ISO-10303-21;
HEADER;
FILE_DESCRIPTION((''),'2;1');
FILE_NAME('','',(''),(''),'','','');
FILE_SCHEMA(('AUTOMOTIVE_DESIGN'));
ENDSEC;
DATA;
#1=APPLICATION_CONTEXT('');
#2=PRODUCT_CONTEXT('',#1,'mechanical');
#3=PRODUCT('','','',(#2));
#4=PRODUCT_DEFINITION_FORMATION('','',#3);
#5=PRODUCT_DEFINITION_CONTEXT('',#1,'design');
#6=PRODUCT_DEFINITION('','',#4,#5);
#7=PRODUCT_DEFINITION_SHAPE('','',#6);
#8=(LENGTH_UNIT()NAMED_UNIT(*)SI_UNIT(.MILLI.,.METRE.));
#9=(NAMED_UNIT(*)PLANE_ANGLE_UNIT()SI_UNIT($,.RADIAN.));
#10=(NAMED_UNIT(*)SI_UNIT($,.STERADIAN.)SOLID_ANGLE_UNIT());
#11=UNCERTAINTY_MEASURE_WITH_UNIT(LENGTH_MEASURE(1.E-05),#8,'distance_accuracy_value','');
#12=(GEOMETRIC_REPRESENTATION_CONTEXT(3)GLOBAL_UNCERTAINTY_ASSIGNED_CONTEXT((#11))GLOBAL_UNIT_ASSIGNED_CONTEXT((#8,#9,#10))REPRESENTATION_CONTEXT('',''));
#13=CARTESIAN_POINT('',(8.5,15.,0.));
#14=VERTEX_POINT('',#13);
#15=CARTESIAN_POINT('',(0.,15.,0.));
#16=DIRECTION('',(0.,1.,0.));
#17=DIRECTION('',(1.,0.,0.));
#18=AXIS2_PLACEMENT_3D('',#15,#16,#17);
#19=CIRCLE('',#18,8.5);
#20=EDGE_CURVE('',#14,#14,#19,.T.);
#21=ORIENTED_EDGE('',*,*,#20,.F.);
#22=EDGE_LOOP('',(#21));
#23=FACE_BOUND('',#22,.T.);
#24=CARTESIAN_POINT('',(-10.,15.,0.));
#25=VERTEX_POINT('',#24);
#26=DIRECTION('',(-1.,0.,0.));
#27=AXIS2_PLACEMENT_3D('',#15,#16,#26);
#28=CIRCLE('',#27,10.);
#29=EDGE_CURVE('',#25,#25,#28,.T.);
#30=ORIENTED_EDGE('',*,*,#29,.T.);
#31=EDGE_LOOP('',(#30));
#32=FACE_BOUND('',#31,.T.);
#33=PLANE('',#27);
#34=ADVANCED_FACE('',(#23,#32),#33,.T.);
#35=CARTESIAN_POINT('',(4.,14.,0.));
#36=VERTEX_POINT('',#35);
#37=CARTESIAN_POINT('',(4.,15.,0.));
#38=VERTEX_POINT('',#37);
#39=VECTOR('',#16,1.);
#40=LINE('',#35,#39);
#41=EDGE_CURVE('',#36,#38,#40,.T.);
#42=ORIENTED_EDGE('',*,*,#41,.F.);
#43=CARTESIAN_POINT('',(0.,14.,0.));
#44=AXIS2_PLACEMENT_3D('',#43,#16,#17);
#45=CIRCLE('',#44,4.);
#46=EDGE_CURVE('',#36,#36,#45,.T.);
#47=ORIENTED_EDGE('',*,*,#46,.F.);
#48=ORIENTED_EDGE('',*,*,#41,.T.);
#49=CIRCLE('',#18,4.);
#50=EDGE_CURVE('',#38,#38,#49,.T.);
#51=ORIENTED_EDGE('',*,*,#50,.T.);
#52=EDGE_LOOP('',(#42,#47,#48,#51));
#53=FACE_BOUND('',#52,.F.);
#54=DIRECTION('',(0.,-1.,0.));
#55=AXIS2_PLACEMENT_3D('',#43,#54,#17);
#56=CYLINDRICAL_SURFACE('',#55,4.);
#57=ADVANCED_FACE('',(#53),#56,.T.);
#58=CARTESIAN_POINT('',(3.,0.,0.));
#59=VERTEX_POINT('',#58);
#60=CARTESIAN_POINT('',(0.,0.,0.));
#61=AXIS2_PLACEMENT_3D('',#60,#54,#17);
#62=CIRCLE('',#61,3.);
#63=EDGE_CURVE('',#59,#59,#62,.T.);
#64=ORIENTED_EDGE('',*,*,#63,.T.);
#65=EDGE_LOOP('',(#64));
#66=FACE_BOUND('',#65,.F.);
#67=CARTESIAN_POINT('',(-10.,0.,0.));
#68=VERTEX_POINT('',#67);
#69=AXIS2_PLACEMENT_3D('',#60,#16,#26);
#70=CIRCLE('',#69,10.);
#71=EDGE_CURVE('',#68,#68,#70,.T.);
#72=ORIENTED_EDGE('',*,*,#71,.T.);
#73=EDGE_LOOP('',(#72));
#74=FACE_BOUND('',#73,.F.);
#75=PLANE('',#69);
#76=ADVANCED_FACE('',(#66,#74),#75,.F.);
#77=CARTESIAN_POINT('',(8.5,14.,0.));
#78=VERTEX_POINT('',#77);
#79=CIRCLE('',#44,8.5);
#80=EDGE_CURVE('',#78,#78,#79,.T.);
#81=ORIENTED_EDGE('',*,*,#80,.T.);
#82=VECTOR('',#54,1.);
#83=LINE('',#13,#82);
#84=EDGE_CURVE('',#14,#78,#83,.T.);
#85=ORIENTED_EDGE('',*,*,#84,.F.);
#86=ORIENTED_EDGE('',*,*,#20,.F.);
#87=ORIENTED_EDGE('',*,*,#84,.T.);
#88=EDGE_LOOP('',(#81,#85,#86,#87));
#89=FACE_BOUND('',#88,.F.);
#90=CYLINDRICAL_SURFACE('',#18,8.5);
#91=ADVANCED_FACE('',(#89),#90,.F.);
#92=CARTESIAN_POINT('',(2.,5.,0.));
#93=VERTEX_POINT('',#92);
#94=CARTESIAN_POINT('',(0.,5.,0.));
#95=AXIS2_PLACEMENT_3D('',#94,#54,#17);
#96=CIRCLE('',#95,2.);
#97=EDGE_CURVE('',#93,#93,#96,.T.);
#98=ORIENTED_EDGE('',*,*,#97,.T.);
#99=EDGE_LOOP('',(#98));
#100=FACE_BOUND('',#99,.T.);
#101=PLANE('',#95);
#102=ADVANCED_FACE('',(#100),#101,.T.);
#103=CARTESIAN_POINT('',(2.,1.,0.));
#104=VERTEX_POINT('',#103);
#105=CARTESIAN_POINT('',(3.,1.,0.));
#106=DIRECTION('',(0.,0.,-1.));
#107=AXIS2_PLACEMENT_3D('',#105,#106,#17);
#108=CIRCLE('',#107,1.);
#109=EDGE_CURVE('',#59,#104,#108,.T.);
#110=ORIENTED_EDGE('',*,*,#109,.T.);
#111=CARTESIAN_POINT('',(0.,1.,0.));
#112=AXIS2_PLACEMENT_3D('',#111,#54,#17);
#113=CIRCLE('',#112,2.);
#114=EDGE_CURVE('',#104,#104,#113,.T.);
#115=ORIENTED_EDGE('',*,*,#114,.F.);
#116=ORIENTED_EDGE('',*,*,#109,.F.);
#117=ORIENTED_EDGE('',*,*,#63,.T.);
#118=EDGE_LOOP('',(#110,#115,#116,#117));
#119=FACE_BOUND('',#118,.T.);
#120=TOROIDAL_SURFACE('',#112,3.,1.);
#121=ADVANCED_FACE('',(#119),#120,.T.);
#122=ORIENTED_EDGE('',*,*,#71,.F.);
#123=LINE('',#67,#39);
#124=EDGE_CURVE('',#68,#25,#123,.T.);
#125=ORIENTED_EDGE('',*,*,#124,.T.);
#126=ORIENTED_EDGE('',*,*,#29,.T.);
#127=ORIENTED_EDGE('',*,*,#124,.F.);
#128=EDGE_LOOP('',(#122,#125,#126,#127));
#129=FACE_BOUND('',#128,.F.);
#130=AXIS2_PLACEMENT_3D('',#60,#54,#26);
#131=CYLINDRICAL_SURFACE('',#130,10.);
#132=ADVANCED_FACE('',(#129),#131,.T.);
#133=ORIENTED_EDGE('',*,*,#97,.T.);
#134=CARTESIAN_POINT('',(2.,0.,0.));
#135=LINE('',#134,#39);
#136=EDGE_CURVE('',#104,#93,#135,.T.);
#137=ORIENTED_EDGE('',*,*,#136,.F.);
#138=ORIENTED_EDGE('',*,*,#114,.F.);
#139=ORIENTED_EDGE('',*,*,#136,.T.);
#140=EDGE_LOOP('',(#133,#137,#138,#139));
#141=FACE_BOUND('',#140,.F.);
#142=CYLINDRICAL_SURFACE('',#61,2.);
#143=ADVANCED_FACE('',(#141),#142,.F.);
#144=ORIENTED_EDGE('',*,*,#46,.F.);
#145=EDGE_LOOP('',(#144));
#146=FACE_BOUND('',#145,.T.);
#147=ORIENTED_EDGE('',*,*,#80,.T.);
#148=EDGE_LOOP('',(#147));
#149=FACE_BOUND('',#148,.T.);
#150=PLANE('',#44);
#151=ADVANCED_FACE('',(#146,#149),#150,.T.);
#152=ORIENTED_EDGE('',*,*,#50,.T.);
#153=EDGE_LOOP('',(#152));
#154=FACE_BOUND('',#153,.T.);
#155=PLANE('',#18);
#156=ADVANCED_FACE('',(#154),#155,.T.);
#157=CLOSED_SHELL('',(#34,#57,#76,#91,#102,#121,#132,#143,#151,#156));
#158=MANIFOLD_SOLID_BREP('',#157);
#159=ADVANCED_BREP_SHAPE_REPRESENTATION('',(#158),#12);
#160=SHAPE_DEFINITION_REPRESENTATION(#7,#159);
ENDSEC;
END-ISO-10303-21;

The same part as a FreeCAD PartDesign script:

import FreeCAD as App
import Part
import Sketcher
from FreeCAD import Vector
Q = App.Units.Quantity


def edges_at(feature, points):
    """Names of the edges that pass closest to the given points."""
    edges = feature.Shape.Edges
    near = lambda p: min(range(len(edges)), key=lambda i: edges[i].distToShape(Part.Vertex(*p))[0])
    return sorted({f"Edge{near(p) + 1}" for p in points})

doc = App.newDocument("Part")
body = doc.addObject("PartDesign::Body", "Body")

sketch1 = body.newObject("Sketcher::SketchObject", "Sketch")
sketch1.AttachmentSupport = (doc.getObject("XZ_Plane"), [""])
sketch1.MapMode = "FlatFace"
sketch1.addGeometry(Part.Circle(Vector(0, 0, 0), Vector(0, 0, 1), 10), False)
sketch1.addConstraint(Sketcher.Constraint("Coincident", 0, 3, -1, 1))
sketch1.addConstraint(Sketcher.Constraint("Diameter", 0, Q("20 mm")))
pad1 = body.newObject("PartDesign::Pad", "Pad")
pad1.Profile = sketch1
pad1.Length = 15
pad1.Reversed = True

sketch2 = body.newObject("Sketcher::SketchObject", "Sketch001")
sketch2.AttachmentSupport = (doc.getObject("XZ_Plane"), [""])
sketch2.MapMode = "FlatFace"
sketch2.AttachmentOffset = App.Placement(Vector(0, 0, -15), App.Rotation())
sketch2.addGeometry(Part.Circle(Vector(0, 0, 0), Vector(0, 0, 1), 8), False)
sketch2.addConstraint(Sketcher.Constraint("Coincident", 0, 3, -1, 1))
sketch2.addConstraint(Sketcher.Constraint("Diameter", 0, Q("17 mm")))
pocket1 = body.newObject("PartDesign::Pocket", "Pocket")
pocket1.Profile = sketch2
pocket1.Length = 1
pocket1.Reversed = True

sketch3 = body.newObject("Sketcher::SketchObject", "Sketch002")
sketch3.AttachmentSupport = (doc.getObject("XZ_Plane"), [""])
sketch3.MapMode = "FlatFace"
sketch3.AttachmentOffset = App.Placement(Vector(0, 0, -14), App.Rotation())
sketch3.addGeometry(Part.Circle(Vector(0, 0, 0), Vector(0, 0, 1), 4), False)
sketch3.addConstraint(Sketcher.Constraint("Coincident", 0, 3, -1, 1))
sketch3.addConstraint(Sketcher.Constraint("Diameter", 0, Q("8 mm")))
pad2 = body.newObject("PartDesign::Pad", "Pad001")
pad2.Profile = sketch3
pad2.Length = 1
pad2.Reversed = True

sketch4 = body.newObject("Sketcher::SketchObject", "Sketch003")
sketch4.AttachmentSupport = (doc.getObject("XZ_Plane"), [""])
sketch4.MapMode = "FlatFace"
sketch4.addGeometry(Part.Circle(Vector(0, 0, 0), Vector(0, 0, 1), 2), False)
sketch4.addConstraint(Sketcher.Constraint("Coincident", 0, 3, -1, 1))
sketch4.addConstraint(Sketcher.Constraint("Diameter", 0, Q("4 mm")))
pocket2 = body.newObject("PartDesign::Pocket", "Pocket001")
pocket2.Profile = sketch4
pocket2.Length = 5
doc.recompute()

fillet = body.newObject("PartDesign::Fillet", "Fillet")
fillet.Base = (pocket2, edges_at(pocket2, [(-2, 0, 0)]))
fillet.Radius = 1

doc.recompute()
